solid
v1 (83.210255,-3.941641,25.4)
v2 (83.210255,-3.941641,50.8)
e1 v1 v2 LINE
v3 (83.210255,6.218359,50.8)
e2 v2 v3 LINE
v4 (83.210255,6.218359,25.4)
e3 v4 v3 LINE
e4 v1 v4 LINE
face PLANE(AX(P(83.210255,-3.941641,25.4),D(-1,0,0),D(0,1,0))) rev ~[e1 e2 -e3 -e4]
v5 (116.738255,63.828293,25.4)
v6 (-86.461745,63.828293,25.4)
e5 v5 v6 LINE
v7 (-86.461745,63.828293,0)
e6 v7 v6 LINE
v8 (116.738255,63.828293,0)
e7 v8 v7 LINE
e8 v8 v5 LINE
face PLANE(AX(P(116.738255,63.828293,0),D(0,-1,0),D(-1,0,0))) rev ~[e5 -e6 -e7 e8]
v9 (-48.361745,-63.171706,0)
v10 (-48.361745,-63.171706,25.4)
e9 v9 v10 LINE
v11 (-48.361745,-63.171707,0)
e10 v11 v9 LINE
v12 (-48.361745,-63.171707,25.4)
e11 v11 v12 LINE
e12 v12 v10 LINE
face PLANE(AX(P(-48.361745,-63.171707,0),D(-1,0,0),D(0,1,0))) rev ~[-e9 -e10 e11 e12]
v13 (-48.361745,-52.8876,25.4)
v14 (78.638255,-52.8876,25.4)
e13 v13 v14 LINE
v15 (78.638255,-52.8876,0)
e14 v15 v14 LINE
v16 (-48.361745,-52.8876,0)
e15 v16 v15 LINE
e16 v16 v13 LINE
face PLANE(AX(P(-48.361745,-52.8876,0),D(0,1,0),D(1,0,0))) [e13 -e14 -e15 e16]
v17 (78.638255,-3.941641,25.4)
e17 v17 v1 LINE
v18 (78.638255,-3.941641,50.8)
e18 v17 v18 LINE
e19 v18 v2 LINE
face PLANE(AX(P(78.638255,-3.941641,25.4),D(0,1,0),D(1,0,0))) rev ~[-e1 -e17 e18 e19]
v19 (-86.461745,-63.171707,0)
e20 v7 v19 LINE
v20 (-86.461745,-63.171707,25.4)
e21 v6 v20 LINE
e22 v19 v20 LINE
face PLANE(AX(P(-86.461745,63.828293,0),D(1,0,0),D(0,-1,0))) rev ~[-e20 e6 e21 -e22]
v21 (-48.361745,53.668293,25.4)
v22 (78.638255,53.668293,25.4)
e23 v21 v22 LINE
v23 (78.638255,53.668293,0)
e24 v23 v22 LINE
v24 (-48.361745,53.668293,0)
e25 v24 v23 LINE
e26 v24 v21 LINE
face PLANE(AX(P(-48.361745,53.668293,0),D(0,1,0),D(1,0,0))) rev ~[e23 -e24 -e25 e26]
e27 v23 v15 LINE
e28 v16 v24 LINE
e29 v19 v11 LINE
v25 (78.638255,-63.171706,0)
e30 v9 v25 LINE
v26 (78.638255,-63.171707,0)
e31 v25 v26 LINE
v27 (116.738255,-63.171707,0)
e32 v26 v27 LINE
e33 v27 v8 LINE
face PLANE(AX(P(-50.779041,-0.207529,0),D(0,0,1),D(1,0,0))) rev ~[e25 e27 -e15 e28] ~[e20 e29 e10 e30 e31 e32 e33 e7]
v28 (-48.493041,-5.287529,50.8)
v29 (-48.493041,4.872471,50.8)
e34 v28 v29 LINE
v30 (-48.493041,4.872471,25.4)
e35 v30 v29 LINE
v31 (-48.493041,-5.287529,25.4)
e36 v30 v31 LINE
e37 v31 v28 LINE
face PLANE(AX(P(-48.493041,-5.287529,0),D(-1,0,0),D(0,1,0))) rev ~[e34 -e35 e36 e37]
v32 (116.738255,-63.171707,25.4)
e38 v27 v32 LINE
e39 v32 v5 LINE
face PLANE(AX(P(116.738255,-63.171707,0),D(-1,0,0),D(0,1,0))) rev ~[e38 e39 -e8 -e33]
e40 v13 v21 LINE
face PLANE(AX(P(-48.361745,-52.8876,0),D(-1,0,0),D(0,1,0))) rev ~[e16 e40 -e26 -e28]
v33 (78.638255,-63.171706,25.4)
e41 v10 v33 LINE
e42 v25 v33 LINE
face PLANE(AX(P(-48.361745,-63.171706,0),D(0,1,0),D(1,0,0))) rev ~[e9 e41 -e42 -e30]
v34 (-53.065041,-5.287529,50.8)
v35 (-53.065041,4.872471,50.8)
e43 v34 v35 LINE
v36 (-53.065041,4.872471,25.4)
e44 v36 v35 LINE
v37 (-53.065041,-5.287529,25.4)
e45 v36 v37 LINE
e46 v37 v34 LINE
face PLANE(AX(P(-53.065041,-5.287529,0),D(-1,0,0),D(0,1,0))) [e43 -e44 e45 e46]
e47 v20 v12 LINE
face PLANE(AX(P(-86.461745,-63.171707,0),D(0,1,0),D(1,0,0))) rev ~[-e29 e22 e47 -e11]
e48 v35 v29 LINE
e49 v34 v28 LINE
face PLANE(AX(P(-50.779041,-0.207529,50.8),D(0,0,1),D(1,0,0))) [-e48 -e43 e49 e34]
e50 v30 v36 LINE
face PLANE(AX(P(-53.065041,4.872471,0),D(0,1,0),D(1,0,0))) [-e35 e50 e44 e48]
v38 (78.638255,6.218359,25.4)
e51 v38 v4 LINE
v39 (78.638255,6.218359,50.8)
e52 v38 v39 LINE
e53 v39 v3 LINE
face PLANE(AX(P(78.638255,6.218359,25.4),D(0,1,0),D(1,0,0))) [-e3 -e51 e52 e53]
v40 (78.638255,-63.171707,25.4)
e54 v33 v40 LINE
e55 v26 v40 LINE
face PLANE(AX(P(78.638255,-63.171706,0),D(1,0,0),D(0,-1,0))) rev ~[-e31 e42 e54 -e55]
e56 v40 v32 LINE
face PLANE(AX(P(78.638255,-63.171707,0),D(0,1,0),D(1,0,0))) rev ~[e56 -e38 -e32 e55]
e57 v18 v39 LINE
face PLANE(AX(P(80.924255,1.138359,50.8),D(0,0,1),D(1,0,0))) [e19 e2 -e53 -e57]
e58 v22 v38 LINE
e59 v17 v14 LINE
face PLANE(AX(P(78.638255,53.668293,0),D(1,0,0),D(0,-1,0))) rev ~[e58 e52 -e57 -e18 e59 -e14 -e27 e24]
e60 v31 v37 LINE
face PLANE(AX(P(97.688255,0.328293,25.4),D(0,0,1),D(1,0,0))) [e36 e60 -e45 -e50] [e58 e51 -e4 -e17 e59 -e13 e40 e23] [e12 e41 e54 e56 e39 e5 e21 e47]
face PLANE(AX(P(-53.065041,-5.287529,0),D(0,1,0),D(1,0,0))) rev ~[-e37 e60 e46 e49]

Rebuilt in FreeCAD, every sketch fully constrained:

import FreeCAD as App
import Part
import Sketcher

V = App.Vector
Q = App.Units.Quantity

doc = App.newDocument("Part")
params = doc.addObject("Spreadsheet::Sheet", "Params")
for row, (alias, value) in enumerate([
    ("sketch1_width", "8 in"),
    ("sketch1_width2", "5 in"),
    ("sketch1_width3", "1.5 in"),
    ("pad1_length", "1 in"),
    ("sketch2_height", "0.4 in"),
    ("sketch2_width", "0.18 in"),
    ("pad2_length", "2 in"),
    ("sketch3_height", "0.4 in"),
    ("sketch3_width", "0.18 in"),
    ("pad3_length", "1 in"),
], start=1):
    params.set(f"A{row}", alias)
    params.set(f"B{row}", "=" + value)
    params.setAlias(f"B{row}", alias)

body = doc.addObject("PartDesign::Body", "Body")

# Sketch on XY plane
sketch1 = body.newObject("Sketcher::SketchObject", "Sketch")
sketch1.AttachmentSupport = (doc.getObject("XY_Plane"), [""])
sketch1.MapMode = "FlatFace"
sketch1.addGeometry([
    Part.LineSegment(V(116.738255, 63.828293, 0), V(-86.461745, 63.828293, 0)),  # 0
    Part.LineSegment(V(-86.461745, 63.828293, 0), V(-86.461745, -63.171707, 0)),  # 1
    Part.LineSegment(V(-86.461745, -63.171707, 0), V(-48.361745, -63.171707, 0)),  # 2
    Part.LineSegment(V(-48.361745, -63.171706, 0), V(-48.361745, -63.171707, 0)),  # 3
    Part.LineSegment(V(-48.361745, -63.171706, 0), V(78.638255, -63.171706, 0)),  # 4
    Part.LineSegment(V(78.638255, -63.171707, 0), V(78.638255, -63.171706, 0)),  # 5
    Part.LineSegment(V(78.638255, -63.171707, 0), V(116.738255, -63.171707, 0)),  # 6
    Part.LineSegment(V(116.738255, -63.171707, 0), V(116.738255, 63.828293, 0)),  # 7
    Part.LineSegment(V(-48.361745, -52.8876, 0), V(-48.361745, 53.668293, 0)),  # 8
    Part.LineSegment(V(-48.361745, 53.668293, 0), V(78.638255, 53.668293, 0)),  # 9
    Part.LineSegment(V(78.638255, 53.668293, 0), V(78.638255, -52.8876, 0)),  # 10
    Part.LineSegment(V(78.638255, -52.8876, 0), V(-48.361745, -52.8876, 0)),  # 11
], False)
sketch1.addConstraint([
    Sketcher.Constraint("Coincident", 0, 2, 1, 1),
    Sketcher.Constraint("Coincident", 1, 2, 2, 1),
    Sketcher.Constraint("Coincident", 2, 2, 3, 1),
    Sketcher.Constraint("Coincident", 3, 2, 4, 1),
    Sketcher.Constraint("Coincident", 4, 2, 5, 1),
    Sketcher.Constraint("Coincident", 5, 2, 6, 1),
    Sketcher.Constraint("Coincident", 6, 2, 7, 1),
    Sketcher.Constraint("Coincident", 7, 2, 0, 1),
    Sketcher.Constraint("Coincident", 8, 2, 9, 1),
    Sketcher.Constraint("Coincident", 9, 2, 10, 1),
    Sketcher.Constraint("Coincident", 10, 2, 11, 1),
    Sketcher.Constraint("Coincident", 11, 2, 8, 1),
    Sketcher.Constraint("Horizontal", 0),
    Sketcher.Constraint("Vertical", 1),
    Sketcher.Constraint("Horizontal", 2),
    Sketcher.Constraint("Horizontal", 3),
    Sketcher.Constraint("Horizontal", 4),
    Sketcher.Constraint("Horizontal", 5),
    Sketcher.Constraint("Horizontal", 6),
    Sketcher.Constraint("Vertical", 7),
    Sketcher.Constraint("Vertical", 8),
    Sketcher.Constraint("Horizontal", 9),
    Sketcher.Constraint("Vertical", 10),
    Sketcher.Constraint("Horizontal", 11),
    Sketcher.Constraint("Vertical", 3, 2, 8, 2),
    Sketcher.Constraint("Vertical", 5, 2, 9, 2),
    Sketcher.Constraint("Equal", 2, 6),
    Sketcher.Constraint("Equal", 4, 9),
    Sketcher.Constraint("Equal", 11, 1),
    Sketcher.Constraint("DistanceX", 0, 2, 0, 1, Q("8 in")),
    Sketcher.Constraint("DistanceX", 4, 1, 4, 2, Q("5 in")),
    Sketcher.Constraint("DistanceX", 2, 1, 2, 2, Q("1.5 in")),
    Sketcher.Constraint("DistanceY", 8, 2, 0, 2, Q("0.4 in")),
    Sketcher.Constraint("DistanceY", 10, 2, -1, 1, 52.8876),
    Sketcher.Constraint("DistanceY", 8, 1, 8, 2, 106.555892),
    Sketcher.Constraint("DistanceX", 0, 2, -1, 1, 86.461745),
])
sketch1.setExpression("Constraints[29]", "Params.sketch1_width")
sketch1.setExpression("Constraints[30]", "Params.sketch1_width2")
sketch1.setExpression("Constraints[31]", "Params.sketch1_width3")
pad1 = body.newObject("PartDesign::Pad", "Pad")
pad1.Profile = sketch1
pad1.setExpression("Length", "Params.pad1_length")

# Sketch on XY plane
sketch2 = body.newObject("Sketcher::SketchObject", "Sketch001")
sketch2.AttachmentSupport = (doc.getObject("XY_Plane"), [""])
sketch2.MapMode = "FlatFace"
sketch2.addGeometry([
    Part.LineSegment(V(-53.1, 4.9, 0), V(-53.1, -5.3, 0)),
    Part.LineSegment(V(-53.1, -5.3, 0), V(-48.5, -5.3, 0)),
    Part.LineSegment(V(-48.5, -5.3, 0), V(-48.5, 4.9, 0)),
    Part.LineSegment(V(-48.5, 4.9, 0), V(-53.1, 4.9, 0)),
], False)
sketch2.addConstraint([
    Sketcher.Constraint("Coincident", 0, 2, 1, 1),
    Sketcher.Constraint("Coincident", 1, 2, 2, 1),
    Sketcher.Constraint("Coincident", 2, 2, 3, 1),
    Sketcher.Constraint("Coincident", 3, 2, 0, 1),
    Sketcher.Constraint("Vertical", 0),
    Sketcher.Constraint("Horizontal", 1),
    Sketcher.Constraint("Vertical", 2),
    Sketcher.Constraint("Horizontal", 3),
    Sketcher.Constraint("DistanceY", 0, 2, 0, 1, Q("0.4 in")),
    Sketcher.Constraint("DistanceX", 1, 1, 1, 2, Q("0.18 in")),
    Sketcher.Constraint("DistanceX", 0, 2, -1, 1, 53.065041),
    Sketcher.Constraint("DistanceY", 0, 2, -1, 1, 5.287529),
])
sketch2.setExpression("Constraints[8]", "Params.sketch2_height")
sketch2.setExpression("Constraints[9]", "Params.sketch2_width")
pad2 = body.newObject("PartDesign::Pad", "Pad001")
pad2.Profile = sketch2
pad2.setExpression("Length", "Params.pad2_length")

# Sketch on XY plane
sketch3 = body.newObject("Sketcher::SketchObject", "Sketch002")
sketch3.AttachmentSupport = (doc.getObject("XY_Plane"), [""])
sketch3.MapMode = "FlatFace"
sketch3.AttachmentOffset = App.Placement(V(0, 0, 1 * 25.4), App.Rotation())
sketch3.addGeometry([
    Part.LineSegment(V(78.6, 6.2, 0), V(78.6, -3.9, 0)),
    Part.LineSegment(V(78.6, -3.9, 0), V(83.2, -3.9, 0)),
    Part.LineSegment(V(83.2, -3.9, 0), V(83.2, 6.2, 0)),
    Part.LineSegment(V(83.2, 6.2, 0), V(78.6, 6.2, 0)),
], False)
sketch3.addConstraint([
    Sketcher.Constraint("Coincident", 0, 2, 1, 1),
    Sketcher.Constraint("Coincident", 1, 2, 2, 1),
    Sketcher.Constraint("Coincident", 2, 2, 3, 1),
    Sketcher.Constraint("Coincident", 3, 2, 0, 1),
    Sketcher.Constraint("Vertical", 0),
    Sketcher.Constraint("Horizontal", 1),
    Sketcher.Constraint("Vertical", 2),
    Sketcher.Constraint("Horizontal", 3),
    Sketcher.Constraint("DistanceY", 0, 2, 0, 1, Q("0.4 in")),
    Sketcher.Constraint("DistanceX", 1, 1, 1, 2, Q("0.18 in")),
    Sketcher.Constraint("DistanceY", 0, 2, -1, 1, 3.941641),
    Sketcher.Constraint("DistanceX", -1, 1, 0, 2, 78.638255),
])
sketch3.setExpression("Constraints[8]", "Params.sketch3_height")
sketch3.setExpression("Constraints[9]", "Params.sketch3_width")
pad3 = body.newObject("PartDesign::Pad", "Pad002")
pad3.Profile = sketch3
pad3.setExpression("Length", "Params.pad3_length")

doc.recompute()
